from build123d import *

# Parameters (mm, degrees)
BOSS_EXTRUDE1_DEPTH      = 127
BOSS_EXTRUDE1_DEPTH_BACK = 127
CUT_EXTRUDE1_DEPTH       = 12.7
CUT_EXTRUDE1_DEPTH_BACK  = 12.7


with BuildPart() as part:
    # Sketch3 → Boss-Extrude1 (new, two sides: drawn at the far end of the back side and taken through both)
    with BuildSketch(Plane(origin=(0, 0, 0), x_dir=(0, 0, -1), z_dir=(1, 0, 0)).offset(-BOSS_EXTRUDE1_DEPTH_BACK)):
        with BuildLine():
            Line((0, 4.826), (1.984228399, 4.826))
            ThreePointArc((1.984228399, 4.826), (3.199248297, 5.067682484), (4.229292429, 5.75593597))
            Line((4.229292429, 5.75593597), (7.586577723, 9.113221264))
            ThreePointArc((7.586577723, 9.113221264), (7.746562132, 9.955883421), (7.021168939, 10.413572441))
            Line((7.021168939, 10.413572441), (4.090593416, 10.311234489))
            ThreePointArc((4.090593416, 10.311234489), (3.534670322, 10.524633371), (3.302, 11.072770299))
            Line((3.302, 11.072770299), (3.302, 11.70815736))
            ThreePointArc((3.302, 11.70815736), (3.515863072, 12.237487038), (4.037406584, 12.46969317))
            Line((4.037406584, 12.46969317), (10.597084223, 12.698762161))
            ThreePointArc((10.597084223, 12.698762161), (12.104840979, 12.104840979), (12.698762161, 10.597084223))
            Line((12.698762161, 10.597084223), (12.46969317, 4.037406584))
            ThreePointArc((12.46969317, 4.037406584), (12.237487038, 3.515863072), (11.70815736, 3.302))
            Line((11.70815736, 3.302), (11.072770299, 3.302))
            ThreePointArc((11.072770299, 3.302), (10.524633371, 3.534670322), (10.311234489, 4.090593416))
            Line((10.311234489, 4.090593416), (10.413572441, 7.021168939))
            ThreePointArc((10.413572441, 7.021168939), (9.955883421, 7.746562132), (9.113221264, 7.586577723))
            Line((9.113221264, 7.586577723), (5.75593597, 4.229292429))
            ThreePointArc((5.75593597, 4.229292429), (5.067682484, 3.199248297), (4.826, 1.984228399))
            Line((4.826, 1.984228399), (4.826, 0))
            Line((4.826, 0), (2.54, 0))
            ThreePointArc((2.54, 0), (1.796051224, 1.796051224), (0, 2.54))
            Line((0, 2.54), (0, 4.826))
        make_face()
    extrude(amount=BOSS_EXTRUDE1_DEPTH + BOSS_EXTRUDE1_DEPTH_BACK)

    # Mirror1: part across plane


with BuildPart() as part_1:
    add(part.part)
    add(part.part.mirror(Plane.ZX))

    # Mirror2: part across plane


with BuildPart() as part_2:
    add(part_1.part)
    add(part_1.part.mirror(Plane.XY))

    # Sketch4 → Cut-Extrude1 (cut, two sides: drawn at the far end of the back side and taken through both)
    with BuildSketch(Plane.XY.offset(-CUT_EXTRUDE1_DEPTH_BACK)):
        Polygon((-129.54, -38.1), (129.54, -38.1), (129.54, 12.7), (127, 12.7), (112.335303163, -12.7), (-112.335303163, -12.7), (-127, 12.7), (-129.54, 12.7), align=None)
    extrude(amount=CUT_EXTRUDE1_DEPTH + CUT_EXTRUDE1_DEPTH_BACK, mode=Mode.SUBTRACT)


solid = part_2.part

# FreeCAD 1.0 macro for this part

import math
import FreeCAD as App
import Part
import Sketcher
Q = App.Units.Quantity


def add_polygon(sketch, points):
    """Adds a closed chain of lines whose ends are joined by coincident constraints."""
    first, n = sketch.GeometryCount, len(points)
    for a, b in zip(points, points[1:] + points[:1]):
        sketch.addGeometry(Part.LineSegment(App.Vector(*a, 0), App.Vector(*b, 0)), False)
    for i in range(n):
        sketch.addConstraint(Sketcher.Constraint("Coincident", first + i, 2, first + (i + 1) % n, 1))

doc = App.newDocument("Part")
params = doc.addObject("Spreadsheet::Sheet", "Params")
for row, (alias, value) in enumerate([
    ("sketch1_radius", "0.1 in"),
    ("sketch1_radius2", "0.03 in"),
    ("sketch1_radius3", "0.08 in"),
    ("sketch1_radius4", "0.125 in"),
    ("sketch1_width", "0.09 in"),
    ("pad1_length", "5 in"),
    ("pad1_length2", "5 in"),
    ("sketch2_height", "2 in"),
    ("sketch2_width", "10.2 in"),
    ("sketch2_width2", "0.1 in"),
], start=1):
    params.set(f"A{row}", alias)
    params.set(f"B{row}", "=" + value)
    params.setAlias(f"B{row}", alias)

body = doc.addObject("PartDesign::Body", "Body")

# Sketch on YZ plane
sketch1 = doc.addObject("Sketcher::SketchObject", "Sketch")
body.addObject(sketch1)
sketch1.AttachmentSupport = (doc.YZ_Plane, [""])
sketch1.MapMode = "FlatFace"
sketch1.addGeometry([
    Part.LineSegment(App.Vector(4.8, -2, 0), App.Vector(4.8, 0, 0)),  # 0
    Part.LineSegment(App.Vector(4.8, 0, 0), App.Vector(2.5, 0, 0)),  # 1
    Part.ArcOfCircle(Part.Circle(App.Vector(0, 0, 0), App.Vector(0, 0, 1), 2.5), math.radians(-90), math.radians(0)),  # 2
    Part.LineSegment(App.Vector(0, -2.5, 0), App.Vector(0, -4.8, 0)),  # 3
    Part.LineSegment(App.Vector(0, -4.8, 0), App.Vector(2, -4.8, 0)),  # 4
    Part.ArcOfCircle(Part.Circle(App.Vector(2, -8, 0), App.Vector(0, 0, 1), 3.2), math.radians(45), math.radians(90)),  # 5
    Part.LineSegment(App.Vector(4.2, -5.8, 0), App.Vector(7.6, -9.1, 0)),  # 6
    Part.ArcOfCircle(Part.Circle(App.Vector(7, -9.7, 0), App.Vector(0, 0, 1), 0.8), math.radians(-92), math.radians(45)),  # 7
    Part.LineSegment(App.Vector(7, -10.4, 0), App.Vector(4.1, -10.3, 0)),  # 8
    Part.ArcOfCircle(Part.Circle(App.Vector(4.1, -11.1, 0), App.Vector(0, 0, 1), 0.8), math.radians(88), math.radians(180)),  # 9
    Part.LineSegment(App.Vector(3.3, -11.1, 0), App.Vector(3.3, -11.7, 0)),  # 10
    Part.ArcOfCircle(Part.Circle(App.Vector(4.1, -11.7, 0), App.Vector(0, 0, 1), 0.8), math.radians(180), math.radians(268)),  # 11
    Part.LineSegment(App.Vector(4, -12.5, 0), App.Vector(10.6, -12.7, 0)),  # 12
    Part.ArcOfCircle(Part.Circle(App.Vector(10.7, -10.7, 0), App.Vector(0, 0, 1), 2), math.radians(-92), math.radians(2)),  # 13
    Part.LineSegment(App.Vector(12.7, -10.6, 0), App.Vector(12.5, -4, 0)),  # 14
    Part.ArcOfCircle(Part.Circle(App.Vector(11.7, -4.1, 0), App.Vector(0, 0, 1), 0.8), math.radians(2), math.radians(90)),  # 15
    Part.LineSegment(App.Vector(11.7, -3.3, 0), App.Vector(11.1, -3.3, 0)),  # 16
    Part.ArcOfCircle(Part.Circle(App.Vector(11.1, -4.1, 0), App.Vector(0, 0, 1), 0.8), math.radians(90), math.radians(182)),  # 17
    Part.LineSegment(App.Vector(10.3, -4.1, 0), App.Vector(10.4, -7, 0)),  # 18
    Part.ArcOfCircle(Part.Circle(App.Vector(9.7, -7, 0), App.Vector(0, 0, 1), 0.8), math.radians(-135), math.radians(2)),  # 19
    Part.LineSegment(App.Vector(9.1, -7.6, 0), App.Vector(5.8, -4.2, 0)),  # 20
    Part.ArcOfCircle(Part.Circle(App.Vector(8, -2, 0), App.Vector(0, 0, 1), 3.2), math.radians(180), math.radians(225)),  # 21
], False)
sketch1.addConstraint([
    Sketcher.Constraint("Coincident", 0, 2, 1, 1),
    Sketcher.Constraint("Coincident", 1, 2, 2, 2),
    Sketcher.Constraint("Coincident", 2, 1, 3, 1),
    Sketcher.Constraint("Coincident", 3, 2, 4, 1),
    Sketcher.Constraint("Tangent", 4, 2, 5, 2),
    Sketcher.Constraint("Tangent", 5, 1, 6, 1),
    Sketcher.Constraint("Tangent", 6, 2, 7, 2),
    Sketcher.Constraint("Tangent", 7, 1, 8, 1),
    Sketcher.Constraint("Tangent", 8, 2, 9, 1),
    Sketcher.Constraint("Tangent", 9, 2, 10, 1),
    Sketcher.Constraint("Tangent", 10, 2, 11, 1),
    Sketcher.Constraint("Tangent", 11, 2, 12, 1),
    Sketcher.Constraint("Tangent", 12, 2, 13, 1),
    Sketcher.Constraint("Tangent", 13, 2, 14, 1),
    Sketcher.Constraint("Tangent", 14, 2, 15, 1),
    Sketcher.Constraint("Tangent", 15, 2, 16, 1),
    Sketcher.Constraint("Tangent", 16, 2, 17, 1),
    Sketcher.Constraint("Tangent", 17, 2, 18, 1),
    Sketcher.Constraint("Tangent", 18, 2, 19, 2),
    Sketcher.Constraint("Tangent", 19, 1, 20, 1),
    Sketcher.Constraint("Tangent", 20, 2, 21, 2),
    Sketcher.Constraint("Tangent", 21, 1, 0, 1),
    Sketcher.Constraint("Vertical", 0),
    Sketcher.Constraint("Horizontal", 1),
    Sketcher.Constraint("Vertical", 3),
    Sketcher.Constraint("Horizontal", 4),
    Sketcher.Constraint("Vertical", 10),
    Sketcher.Constraint("Horizontal", 16),
    Sketcher.Constraint("Coincident", 2, 3, -1, 1),
    Sketcher.Constraint("Equal", 7, 9),
    Sketcher.Constraint("Equal", 9, 11),
    Sketcher.Constraint("Equal", 11, 15),
    Sketcher.Constraint("Equal", 15, 17),
    Sketcher.Constraint("Equal", 17, 19),
    Sketcher.Constraint("Equal", 5, 21),
    Sketcher.Constraint("PointOnObject", 0, 2, -1),
    Sketcher.Constraint("PointOnObject", 2, 1, -2),
    Sketcher.Constraint("Parallel", 8, 12),
    Sketcher.Constraint("Parallel", 14, 18),
    Sketcher.Constraint("Parallel", 6, 20),
    Sketcher.Constraint("Equal", 4, 0),
    Sketcher.Constraint("Equal", 1, 3),
    Sketcher.Constraint("Equal", 16, 10),
    Sketcher.Constraint("Equal", 12, 14),
    Sketcher.Constraint("Equal", 8, 18),
    Sketcher.Constraint("Equal", 6, 20),
    Sketcher.Constraint("Radius", 2, Q("0.1 in")),
    Sketcher.Constraint("Radius", 7, Q("0.03 in")),
    Sketcher.Constraint("Radius", 13, Q("0.08 in")),
    Sketcher.Constraint("Angle", 6, Q("-45 deg")),
    Sketcher.Constraint("Angle", 8, Q("178 deg")),
    Sketcher.Constraint("Radius", 5, Q("0.125 in")),
    Sketcher.Constraint("DistanceX", 1, 2, 1, 1, Q("0.09 in")),
    Sketcher.Constraint("DistanceX", -1, 1, 9, 3, Q("0.16 in")),
    Sketcher.Constraint("DistanceX", -1, 1, 13, 3, Q("0.42 in")),
    Sketcher.Constraint("DistanceX", 4, 1, 4, 2, Q("1.984228 mm")),
    Sketcher.Constraint("DistanceY", 7, 3, 5, 1, Q("3.896101 mm")),
])
sketch1.setExpression("Constraints[46]", "Params.sketch1_radius")
sketch1.setExpression("Constraints[47]", "Params.sketch1_radius2")
sketch1.setExpression("Constraints[48]", "Params.sketch1_radius3")
sketch1.setExpression("Constraints[51]", "Params.sketch1_radius4")
sketch1.setExpression("Constraints[52]", "Params.sketch1_width")
pad1 = doc.addObject("PartDesign::Pad", "Pad")
body.addObject(pad1)
pad1.Profile = sketch1
pad1.Type = "TwoLengths"
pad1.setExpression("Length", "Params.pad1_length")
pad1.setExpression("Length2", "Params.pad1_length2")
body2 = doc.addObject("PartDesign::Body", "Body001")
doc.recompute()

body2.BaseFeature = body
doc.recompute()

mirroring = doc.addObject("Part::Mirroring", "Mirroring")
mirroring.Source = body
mirroring.Base = App.Vector(0, 0, 0)
mirroring.Normal = App.Vector(0, 1, 0)
body3 = doc.addObject("PartDesign::Body", "Body002")
body3.BaseFeature = mirroring
boolean = doc.addObject("PartDesign::Boolean", "Boolean")
body2.addObject(boolean)
boolean.Type = "Fuse"
boolean.addObjects([body3])
doc.recompute()
body4 = doc.addObject("PartDesign::Body", "Body003")
doc.recompute()

body4.BaseFeature = body2
doc.recompute()

mirroring2 = doc.addObject("Part::Mirroring", "Mirroring001")
mirroring2.Source = body2
mirroring2.Base = App.Vector(0, 0, 0)
mirroring2.Normal = App.Vector(0, 0, 1)
body5 = doc.addObject("PartDesign::Body", "Body004")
body5.BaseFeature = mirroring2
boolean2 = doc.addObject("PartDesign::Boolean", "Boolean001")
body4.addObject(boolean2)
boolean2.Type = "Fuse"
boolean2.addObjects([body5])
doc.recompute()

# Sketch on XY plane
sketch2 = doc.addObject("Sketcher::SketchObject", "Sketch001")
body4.addObject(sketch2)
sketch2.AttachmentSupport = (doc.getObject("XY_Plane003"), [""])
sketch2.MapMode = "FlatFace"
add_polygon(sketch2, [(-129.5, -38.1), (129.5, -38.1), (129.5, 12.7), (127, 12.7), (112.3, -12.7), (-112.3, -12.7), (-127, 12.7), (-129.5, 12.7)])  # lines 0-7
sketch2.addConstraint([
    Sketcher.Constraint("Horizontal", 0),
    Sketcher.Constraint("Vertical", 1),
    Sketcher.Constraint("Horizontal", 2),
    Sketcher.Constraint("Horizontal", 4),
    Sketcher.Constraint("Horizontal", 6),
    Sketcher.Constraint("Vertical", 7),
    Sketcher.Constraint("Symmetric", 2, 2, 5, 2, -2),
    Sketcher.Constraint("Equal", 2, 6),
    Sketcher.Constraint("Equal", 3, 5),
    Sketcher.Constraint("DistanceY", 1, 1, 1, 2, Q("2 in")),
    Sketcher.Constraint("DistanceX", 0, 1, 0, 2, Q("10.2 in")),
    Sketcher.Constraint("DistanceX", 2, 2, 2, 1, Q("0.1 in")),
    Sketcher.Constraint("Angle", 3, Q("-120 deg")),
    Sketcher.Constraint("DistanceY", 3, 2, 2, 2, Q("1 in")),
    Sketcher.Constraint("DistanceY", 0, 2, -1, 1, Q("1.5 in")),
])
sketch2.setExpression("Constraints[17]", "Params.sketch2_height")
sketch2.setExpression("Constraints[18]", "Params.sketch2_width")
sketch2.setExpression("Constraints[19]", "Params.sketch2_width2")
pocket1 = doc.addObject("PartDesign::Pocket", "Pocket")
body4.addObject(pocket1)
pocket1.Profile = sketch2
pocket1.Type = "ThroughAll"
pocket1.Midplane = True
mirroring.Visibility = False
mirroring2.Visibility = False

doc.recompute()
